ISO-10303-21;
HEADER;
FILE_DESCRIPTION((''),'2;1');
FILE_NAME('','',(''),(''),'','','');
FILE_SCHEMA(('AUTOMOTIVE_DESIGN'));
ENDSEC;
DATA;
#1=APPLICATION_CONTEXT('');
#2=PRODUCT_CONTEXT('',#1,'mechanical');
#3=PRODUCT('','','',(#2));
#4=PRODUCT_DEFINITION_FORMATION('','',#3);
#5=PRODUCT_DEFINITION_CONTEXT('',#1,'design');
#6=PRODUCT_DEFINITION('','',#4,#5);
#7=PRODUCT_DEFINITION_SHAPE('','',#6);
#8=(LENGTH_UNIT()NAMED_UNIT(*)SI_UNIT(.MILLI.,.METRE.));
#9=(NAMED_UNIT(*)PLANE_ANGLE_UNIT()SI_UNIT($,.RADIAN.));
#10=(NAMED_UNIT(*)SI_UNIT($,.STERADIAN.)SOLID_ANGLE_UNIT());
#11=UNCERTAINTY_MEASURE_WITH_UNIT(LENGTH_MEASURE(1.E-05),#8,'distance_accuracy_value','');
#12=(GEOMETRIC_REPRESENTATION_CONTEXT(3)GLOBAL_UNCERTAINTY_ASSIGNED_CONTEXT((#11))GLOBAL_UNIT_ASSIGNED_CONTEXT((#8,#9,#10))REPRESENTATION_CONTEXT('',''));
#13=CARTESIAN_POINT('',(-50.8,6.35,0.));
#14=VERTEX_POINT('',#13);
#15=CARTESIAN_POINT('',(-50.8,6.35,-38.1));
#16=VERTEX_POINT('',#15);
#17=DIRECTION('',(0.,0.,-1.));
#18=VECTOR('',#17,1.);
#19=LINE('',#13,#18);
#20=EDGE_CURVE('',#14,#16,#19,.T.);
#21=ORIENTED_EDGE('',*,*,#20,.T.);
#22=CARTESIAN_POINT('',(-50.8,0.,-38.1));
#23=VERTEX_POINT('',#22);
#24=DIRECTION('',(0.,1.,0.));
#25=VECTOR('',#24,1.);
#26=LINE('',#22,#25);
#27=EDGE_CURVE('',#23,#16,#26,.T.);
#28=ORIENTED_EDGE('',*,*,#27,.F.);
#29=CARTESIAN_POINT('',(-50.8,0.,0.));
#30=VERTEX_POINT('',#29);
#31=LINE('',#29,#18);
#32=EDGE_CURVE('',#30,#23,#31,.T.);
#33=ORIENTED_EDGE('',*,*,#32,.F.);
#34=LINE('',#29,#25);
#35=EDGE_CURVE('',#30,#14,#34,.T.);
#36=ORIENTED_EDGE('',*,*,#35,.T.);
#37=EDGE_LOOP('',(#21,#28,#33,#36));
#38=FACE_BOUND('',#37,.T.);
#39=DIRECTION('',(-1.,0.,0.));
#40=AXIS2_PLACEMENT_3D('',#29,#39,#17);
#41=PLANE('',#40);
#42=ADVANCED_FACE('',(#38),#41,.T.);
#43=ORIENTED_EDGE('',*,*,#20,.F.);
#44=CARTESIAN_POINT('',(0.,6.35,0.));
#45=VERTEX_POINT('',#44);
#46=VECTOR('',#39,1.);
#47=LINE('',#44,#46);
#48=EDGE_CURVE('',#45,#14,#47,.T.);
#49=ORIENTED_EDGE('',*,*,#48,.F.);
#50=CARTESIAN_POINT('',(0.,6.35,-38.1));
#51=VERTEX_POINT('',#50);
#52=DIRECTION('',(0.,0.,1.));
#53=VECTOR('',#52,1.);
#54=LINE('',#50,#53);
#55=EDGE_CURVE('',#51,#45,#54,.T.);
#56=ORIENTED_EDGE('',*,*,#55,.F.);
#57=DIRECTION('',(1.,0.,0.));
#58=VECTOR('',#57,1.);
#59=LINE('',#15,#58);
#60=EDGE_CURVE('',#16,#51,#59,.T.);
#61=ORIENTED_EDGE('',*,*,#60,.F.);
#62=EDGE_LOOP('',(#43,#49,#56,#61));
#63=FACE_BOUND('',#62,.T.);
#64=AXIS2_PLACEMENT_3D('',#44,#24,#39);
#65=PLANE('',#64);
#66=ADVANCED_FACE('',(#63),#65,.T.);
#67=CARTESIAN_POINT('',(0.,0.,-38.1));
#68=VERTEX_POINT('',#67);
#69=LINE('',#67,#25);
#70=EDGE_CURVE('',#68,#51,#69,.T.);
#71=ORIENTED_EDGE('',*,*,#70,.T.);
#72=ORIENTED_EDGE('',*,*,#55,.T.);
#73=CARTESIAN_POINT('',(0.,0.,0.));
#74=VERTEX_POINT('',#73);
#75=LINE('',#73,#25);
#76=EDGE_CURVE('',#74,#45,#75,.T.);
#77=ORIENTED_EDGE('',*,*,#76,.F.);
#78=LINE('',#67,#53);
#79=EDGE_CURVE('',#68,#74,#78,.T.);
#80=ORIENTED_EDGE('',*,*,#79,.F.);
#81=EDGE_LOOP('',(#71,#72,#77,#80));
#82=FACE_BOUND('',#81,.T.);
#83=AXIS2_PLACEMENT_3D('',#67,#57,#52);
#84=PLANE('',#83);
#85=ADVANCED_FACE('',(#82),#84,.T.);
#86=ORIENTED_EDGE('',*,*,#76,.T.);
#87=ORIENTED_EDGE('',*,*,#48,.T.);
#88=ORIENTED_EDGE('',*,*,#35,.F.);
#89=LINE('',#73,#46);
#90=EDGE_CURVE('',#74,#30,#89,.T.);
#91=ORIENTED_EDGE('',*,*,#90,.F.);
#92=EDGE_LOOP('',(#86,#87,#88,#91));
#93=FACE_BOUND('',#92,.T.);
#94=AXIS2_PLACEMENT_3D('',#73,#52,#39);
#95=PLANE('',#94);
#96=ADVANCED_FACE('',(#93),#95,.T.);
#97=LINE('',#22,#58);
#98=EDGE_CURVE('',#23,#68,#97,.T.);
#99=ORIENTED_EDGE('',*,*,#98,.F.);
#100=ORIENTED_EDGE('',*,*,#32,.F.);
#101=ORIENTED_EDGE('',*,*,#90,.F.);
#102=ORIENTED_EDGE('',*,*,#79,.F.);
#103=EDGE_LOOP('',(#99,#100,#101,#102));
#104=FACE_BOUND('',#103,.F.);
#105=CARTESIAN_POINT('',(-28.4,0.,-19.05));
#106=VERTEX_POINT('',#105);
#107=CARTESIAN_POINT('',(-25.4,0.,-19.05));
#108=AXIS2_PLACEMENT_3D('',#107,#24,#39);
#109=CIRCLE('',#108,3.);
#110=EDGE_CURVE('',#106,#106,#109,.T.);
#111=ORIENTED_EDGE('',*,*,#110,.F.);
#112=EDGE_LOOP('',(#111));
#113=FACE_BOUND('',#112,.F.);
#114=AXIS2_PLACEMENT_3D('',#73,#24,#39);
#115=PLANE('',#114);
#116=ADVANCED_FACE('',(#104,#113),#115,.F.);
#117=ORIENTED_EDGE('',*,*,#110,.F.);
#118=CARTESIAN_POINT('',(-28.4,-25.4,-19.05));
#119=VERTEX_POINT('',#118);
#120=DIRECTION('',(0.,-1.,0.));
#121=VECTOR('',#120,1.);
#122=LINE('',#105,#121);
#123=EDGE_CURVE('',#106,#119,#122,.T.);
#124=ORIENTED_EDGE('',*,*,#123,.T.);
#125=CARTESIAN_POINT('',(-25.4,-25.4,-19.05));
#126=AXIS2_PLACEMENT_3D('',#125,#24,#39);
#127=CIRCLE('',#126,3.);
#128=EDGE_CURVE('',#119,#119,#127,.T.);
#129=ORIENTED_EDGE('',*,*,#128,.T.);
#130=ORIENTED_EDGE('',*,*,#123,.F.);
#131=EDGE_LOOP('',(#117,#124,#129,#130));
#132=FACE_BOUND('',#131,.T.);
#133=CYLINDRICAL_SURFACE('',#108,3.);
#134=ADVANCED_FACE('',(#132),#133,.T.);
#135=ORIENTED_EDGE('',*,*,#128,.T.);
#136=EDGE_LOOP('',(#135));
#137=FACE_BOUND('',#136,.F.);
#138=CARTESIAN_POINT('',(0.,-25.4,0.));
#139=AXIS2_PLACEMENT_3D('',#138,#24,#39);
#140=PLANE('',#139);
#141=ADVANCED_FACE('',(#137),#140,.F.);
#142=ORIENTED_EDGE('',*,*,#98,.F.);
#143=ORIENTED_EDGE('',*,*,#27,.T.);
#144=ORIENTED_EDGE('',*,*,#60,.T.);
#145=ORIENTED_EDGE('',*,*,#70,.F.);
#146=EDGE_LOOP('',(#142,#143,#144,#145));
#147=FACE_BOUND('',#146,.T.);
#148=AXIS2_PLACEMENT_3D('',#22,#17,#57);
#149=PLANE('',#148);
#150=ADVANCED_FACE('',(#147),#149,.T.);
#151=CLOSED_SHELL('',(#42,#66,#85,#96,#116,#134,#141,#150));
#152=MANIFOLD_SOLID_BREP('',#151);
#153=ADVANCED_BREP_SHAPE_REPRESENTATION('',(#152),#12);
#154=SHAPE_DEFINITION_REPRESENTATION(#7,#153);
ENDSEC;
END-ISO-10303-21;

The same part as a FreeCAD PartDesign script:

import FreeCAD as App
import Part
import Sketcher

V = App.Vector
Q = App.Units.Quantity

doc = App.newDocument("Part")
params = doc.addObject("Spreadsheet::Sheet", "Params")
for row, (alias, value) in enumerate([
    ("sketch1_width", "2 in"),
    ("sketch1_height", "1.5 in"),
    ("pad1_length", "0.25 in"),
    ("pad2_length", "1 in"),
], start=1):
    params.set(f"A{row}", alias)
    params.set(f"B{row}", "=" + value)
    params.setAlias(f"B{row}", alias)

body = doc.addObject("PartDesign::Body", "Body")

# Sketch on XZ plane
sketch1 = body.newObject("Sketcher::SketchObject", "Sketch")
sketch1.AttachmentSupport = (doc.getObject("XZ_Plane"), [""])
sketch1.MapMode = "FlatFace"
sketch1.addGeometry(Part.LineSegment(V(-51, 0, 0), V(0, 0, 0)), False)
sketch1.addGeometry(Part.LineSegment(V(0, 0, 0), V(0, -38, 0)), False)
sketch1.addGeometry(Part.LineSegment(V(0, -38, 0), V(-51, -38, 0)), False)
sketch1.addGeometry(Part.LineSegment(V(-51, -38, 0), V(-51, 0, 0)), False)
sketch1.addConstraint(Sketcher.Constraint("Coincident", 0, 2, 1, 1))
sketch1.addConstraint(Sketcher.Constraint("Coincident", 1, 2, 2, 1))
sketch1.addConstraint(Sketcher.Constraint("Coincident", 2, 2, 3, 1))
sketch1.addConstraint(Sketcher.Constraint("Coincident", 3, 2, 0, 1))
sketch1.addConstraint(Sketcher.Constraint("Horizontal", 0))
sketch1.addConstraint(Sketcher.Constraint("Vertical", 1))
sketch1.addConstraint(Sketcher.Constraint("Horizontal", 2))
sketch1.addConstraint(Sketcher.Constraint("Vertical", 3))
sketch1.addConstraint(Sketcher.Constraint("Coincident", 0, 2, -1, 1))
sketch1.addConstraint(Sketcher.Constraint("DistanceX", 0, 1, 0, 2, Q("2 in")))
sketch1.addConstraint(Sketcher.Constraint("DistanceY", 1, 2, 1, 1, Q("1.5 in")))
sketch1.setExpression("Constraints[9]", "Params.sketch1_width")
sketch1.setExpression("Constraints[10]", "Params.sketch1_height")
pad1 = body.newObject("PartDesign::Pad", "Pad")
pad1.Profile = sketch1
pad1.setExpression("Length", "Params.pad1_length")
pad1.Reversed = True

# Sketch on XZ plane
sketch2 = body.newObject("Sketcher::SketchObject", "Sketch001")
sketch2.AttachmentSupport = (doc.getObject("XZ_Plane"), [""])
sketch2.MapMode = "FlatFace"
sketch2.addGeometry(Part.Circle(V(-25.4, -19.1, 0), V(0, 0, 1), 3), False)
sketch2.addConstraint(Sketcher.Constraint("Diameter", 0, Q("6 mm")))
sketch2.addConstraint(Sketcher.Constraint("DistanceX", 0, 3, -1, 1, Q("1 in")))
sketch2.addConstraint(Sketcher.Constraint("DistanceY", 0, 3, -1, 1, Q("0.75 in")))
pad2 = body.newObject("PartDesign::Pad", "Pad001")
pad2.Profile = sketch2
pad2.setExpression("Length", "Params.pad2_length")

doc.recompute()
